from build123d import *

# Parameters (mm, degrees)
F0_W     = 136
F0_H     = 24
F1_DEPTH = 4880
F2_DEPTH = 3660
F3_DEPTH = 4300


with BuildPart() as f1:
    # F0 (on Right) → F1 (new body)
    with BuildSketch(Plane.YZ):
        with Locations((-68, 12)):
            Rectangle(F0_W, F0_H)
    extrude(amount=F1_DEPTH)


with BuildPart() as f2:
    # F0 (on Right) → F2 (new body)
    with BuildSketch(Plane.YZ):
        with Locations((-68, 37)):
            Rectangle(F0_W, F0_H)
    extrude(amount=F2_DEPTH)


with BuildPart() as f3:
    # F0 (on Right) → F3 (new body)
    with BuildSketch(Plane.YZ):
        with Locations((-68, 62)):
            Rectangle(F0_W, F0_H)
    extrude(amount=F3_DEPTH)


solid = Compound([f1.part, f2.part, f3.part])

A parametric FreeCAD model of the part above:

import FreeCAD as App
import Part
import Sketcher

V = App.Vector
Q = App.Units.Quantity


def add_polygon(sketch, points):
    """Adds a closed chain of lines whose ends are joined by coincident constraints."""
    first, n = sketch.GeometryCount, len(points)
    for a, b in zip(points, points[1:] + points[:1]):
        sketch.addGeometry(Part.LineSegment(App.Vector(*a, 0), App.Vector(*b, 0)), False)
    for i in range(n):
        sketch.addConstraint(Sketcher.Constraint("Coincident", first + i, 2, first + (i + 1) % n, 1))

doc = App.newDocument("Part")
body = doc.addObject("PartDesign::Body", "Body")

# Sketch on YZ plane
sketch1 = doc.addObject("Sketcher::SketchObject", "Sketch")
body.addObject(sketch1)
sketch1.AttachmentSupport = (doc.YZ_Plane, [""])
sketch1.MapMode = "FlatFace"
add_polygon(sketch1, [(-136, 24), (-136, 0), (0, 0), (0, 24)])  # lines 0-3
sketch1.addConstraint(Sketcher.Constraint("Vertical", 0))
sketch1.addConstraint(Sketcher.Constraint("Horizontal", 1))
sketch1.addConstraint(Sketcher.Constraint("Vertical", 2))
sketch1.addConstraint(Sketcher.Constraint("Horizontal", 3))
sketch1.addConstraint(Sketcher.Constraint("Coincident", 1, 2, -1, 1))
sketch1.addConstraint(Sketcher.Constraint("DistanceX", 1, 1, 1, 2, Q("136 mm")))
sketch1.addConstraint(Sketcher.Constraint("DistanceY", 0, 2, 0, 1, Q("24 mm")))
pad1 = doc.addObject("PartDesign::Pad", "Pad")
body.addObject(pad1)
pad1.Profile = sketch1
pad1.Length = 4880
body2 = doc.addObject("PartDesign::Body", "Body001")

# Sketch on YZ plane
sketch2 = doc.addObject("Sketcher::SketchObject", "Sketch001")
body2.addObject(sketch2)
sketch2.AttachmentSupport = (doc.getObject("YZ_Plane001"), [""])
sketch2.MapMode = "FlatFace"
add_polygon(sketch2, [(-136, 49), (-136, 25), (0, 25), (0, 49)])  # lines 0-3
sketch2.addConstraint(Sketcher.Constraint("Vertical", 0))
sketch2.addConstraint(Sketcher.Constraint("Horizontal", 1))
sketch2.addConstraint(Sketcher.Constraint("Vertical", 2))
sketch2.addConstraint(Sketcher.Constraint("Horizontal", 3))
sketch2.addConstraint(Sketcher.Constraint("PointOnObject", 1, 2, -2))
sketch2.addConstraint(Sketcher.Constraint("DistanceX", 1, 1, 1, 2, Q("136 mm")))
sketch2.addConstraint(Sketcher.Constraint("DistanceY", 0, 2, 0, 1, Q("24 mm")))
sketch2.addConstraint(Sketcher.Constraint("DistanceY", -1, 1, 0, 2, Q("25 mm")))
pad2 = doc.addObject("PartDesign::Pad", "Pad001")
body2.addObject(pad2)
pad2.Profile = sketch2
pad2.Length = 3660
body3 = doc.addObject("PartDesign::Body", "Body002")

# Sketch on YZ plane
sketch3 = doc.addObject("Sketcher::SketchObject", "Sketch002")
body3.addObject(sketch3)
sketch3.AttachmentSupport = (doc.getObject("YZ_Plane002"), [""])
sketch3.MapMode = "FlatFace"
add_polygon(sketch3, [(-136, 74), (-136, 50), (0, 50), (0, 74)])  # lines 0-3
sketch3.addConstraint(Sketcher.Constraint("Vertical", 0))
sketch3.addConstraint(Sketcher.Constraint("Horizontal", 1))
sketch3.addConstraint(Sketcher.Constraint("Vertical", 2))
sketch3.addConstraint(Sketcher.Constraint("Horizontal", 3))
sketch3.addConstraint(Sketcher.Constraint("PointOnObject", 1, 2, -2))
sketch3.addConstraint(Sketcher.Constraint("DistanceX", 1, 1, 1, 2, Q("136 mm")))
sketch3.addConstraint(Sketcher.Constraint("DistanceY", 0, 2, 0, 1, Q("24 mm")))
sketch3.addConstraint(Sketcher.Constraint("DistanceY", -1, 1, 0, 2, Q("50 mm")))
pad3 = doc.addObject("PartDesign::Pad", "Pad002")
body3.addObject(pad3)
pad3.Profile = sketch3
pad3.Length = 4300

doc.recompute()
